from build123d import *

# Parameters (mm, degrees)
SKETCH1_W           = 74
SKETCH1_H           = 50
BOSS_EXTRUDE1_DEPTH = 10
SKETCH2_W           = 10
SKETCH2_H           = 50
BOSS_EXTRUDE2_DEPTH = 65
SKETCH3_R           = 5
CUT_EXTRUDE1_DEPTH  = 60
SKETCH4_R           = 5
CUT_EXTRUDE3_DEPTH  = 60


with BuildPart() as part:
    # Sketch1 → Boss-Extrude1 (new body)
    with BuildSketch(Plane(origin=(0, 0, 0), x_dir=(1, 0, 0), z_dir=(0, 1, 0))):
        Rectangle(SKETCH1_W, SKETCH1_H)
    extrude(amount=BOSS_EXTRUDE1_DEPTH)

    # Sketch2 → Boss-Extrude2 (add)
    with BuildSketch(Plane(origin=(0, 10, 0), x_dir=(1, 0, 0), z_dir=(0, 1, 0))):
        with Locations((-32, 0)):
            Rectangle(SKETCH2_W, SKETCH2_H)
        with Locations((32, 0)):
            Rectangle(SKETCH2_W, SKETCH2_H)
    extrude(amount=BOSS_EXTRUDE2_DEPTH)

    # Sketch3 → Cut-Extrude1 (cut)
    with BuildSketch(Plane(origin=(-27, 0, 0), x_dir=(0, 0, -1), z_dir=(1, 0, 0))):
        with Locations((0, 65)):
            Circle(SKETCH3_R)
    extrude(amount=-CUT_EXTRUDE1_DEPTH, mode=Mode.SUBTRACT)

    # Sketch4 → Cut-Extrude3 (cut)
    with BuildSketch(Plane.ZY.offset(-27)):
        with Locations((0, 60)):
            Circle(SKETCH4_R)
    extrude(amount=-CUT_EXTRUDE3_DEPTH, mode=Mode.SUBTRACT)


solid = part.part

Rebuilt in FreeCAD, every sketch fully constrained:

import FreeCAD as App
import Part
import Sketcher
from FreeCAD import Vector
Q = App.Units.Quantity


def add_polygon(sketch, points):
    """Adds a closed chain of lines whose ends are joined by coincident constraints."""
    first, n = sketch.GeometryCount, len(points)
    for a, b in zip(points, points[1:] + points[:1]):
        sketch.addGeometry(Part.LineSegment(App.Vector(*a, 0), App.Vector(*b, 0)), False)
    for i in range(n):
        sketch.addConstraint(Sketcher.Constraint("Coincident", first + i, 2, first + (i + 1) % n, 1))

doc = App.newDocument("Part")
body = doc.addObject("PartDesign::Body", "Body")

# Sketch on XZ plane
sketch1 = doc.addObject("Sketcher::SketchObject", "Sketch")
body.addObject(sketch1)
sketch1.AttachmentSupport = (doc.XZ_Plane, [""])
sketch1.MapMode = "FlatFace"
add_polygon(sketch1, [(-37, -25), (-37, 25), (37, 25), (37, -25)])  # lines 0-3
sketch1.addConstraint(Sketcher.Constraint("Vertical", 0))
sketch1.addConstraint(Sketcher.Constraint("Horizontal", 1))
sketch1.addConstraint(Sketcher.Constraint("Vertical", 2))
sketch1.addConstraint(Sketcher.Constraint("Horizontal", 3))
sketch1.addConstraint(Sketcher.Constraint("Symmetric", 0, 2, 2, 2, -1, 1))
sketch1.addConstraint(Sketcher.Constraint("DistanceX", 1, 1, 1, 2, Q("74 mm")))
sketch1.addConstraint(Sketcher.Constraint("DistanceY", 0, 1, 0, 2, Q("50 mm")))
pad1 = doc.addObject("PartDesign::Pad", "Pad")
body.addObject(pad1)
pad1.Profile = sketch1
pad1.Length = 10
pad1.Reversed = True

# Sketch on XZ plane
sketch2 = doc.addObject("Sketcher::SketchObject", "Sketch001")
body.addObject(sketch2)
sketch2.AttachmentSupport = (doc.XZ_Plane, [""])
sketch2.MapMode = "FlatFace"
sketch2.AttachmentOffset = App.Placement(Vector(0, 0, -10), App.Rotation())
add_polygon(sketch2, [(-37, -25), (-37, 25), (-27, 25), (-27, -25)])  # lines 0-3
add_polygon(sketch2, [(27, -25), (27, 25), (37, 25), (37, -25)])  # lines 4-7
sketch2.addConstraint(Sketcher.Constraint("Vertical", 0))
sketch2.addConstraint(Sketcher.Constraint("Horizontal", 1))
sketch2.addConstraint(Sketcher.Constraint("Vertical", 2))
sketch2.addConstraint(Sketcher.Constraint("Horizontal", 3))
sketch2.addConstraint(Sketcher.Constraint("Vertical", 4))
sketch2.addConstraint(Sketcher.Constraint("Horizontal", 5))
sketch2.addConstraint(Sketcher.Constraint("Vertical", 6))
sketch2.addConstraint(Sketcher.Constraint("Horizontal", 7))
sketch2.addConstraint(Sketcher.Constraint("Symmetric", 2, 2, 4, 2, -1, 1))
sketch2.addConstraint(Sketcher.Constraint("Symmetric", 0, 2, 6, 2, -1, 1))
sketch2.addConstraint(Sketcher.Constraint("Horizontal", 1, 2, 4, 2))
sketch2.addConstraint(Sketcher.Constraint("DistanceX", 1, 1, 1, 2, Q("10 mm")))
sketch2.addConstraint(Sketcher.Constraint("DistanceY", 0, 1, 0, 2, Q("50 mm")))
sketch2.addConstraint(Sketcher.Constraint("DistanceX", 0, 2, -1, 1, Q("37 mm")))
pad2 = doc.addObject("PartDesign::Pad", "Pad001")
body.addObject(pad2)
pad2.Profile = sketch2
pad2.Length = 65
pad2.Reversed = True

# Sketch on YZ plane
sketch3 = doc.addObject("Sketcher::SketchObject", "Sketch002")
body.addObject(sketch3)
sketch3.AttachmentSupport = (doc.YZ_Plane, [""])
sketch3.MapMode = "FlatFace"
sketch3.AttachmentOffset = App.Placement(Vector(0, 0, -27), App.Rotation())
sketch3.addGeometry(Part.Circle(Vector(65, 0, 0), Vector(0, 0, 1), 5), False)
sketch3.addConstraint(Sketcher.Constraint("PointOnObject", 0, 3, -1))
sketch3.addConstraint(Sketcher.Constraint("Diameter", 0, Q("10 mm")))
sketch3.addConstraint(Sketcher.Constraint("DistanceX", -1, 1, 0, 3, Q("65 mm")))
pocket1 = doc.addObject("PartDesign::Pocket", "Pocket")
body.addObject(pocket1)
pocket1.Profile = sketch3
pocket1.Length = 60

# Sketch on YZ plane
sketch4 = doc.addObject("Sketcher::SketchObject", "Sketch003")
body.addObject(sketch4)
sketch4.AttachmentSupport = (doc.YZ_Plane, [""])
sketch4.MapMode = "FlatFace"
sketch4.AttachmentOffset = App.Placement(Vector(0, 0, 27), App.Rotation())
sketch4.addGeometry(Part.Circle(Vector(60, 0, 0), Vector(0, 0, 1), 5), False)
sketch4.addConstraint(Sketcher.Constraint("PointOnObject", 0, 3, -1))
sketch4.addConstraint(Sketcher.Constraint("Diameter", 0, Q("10 mm")))
sketch4.addConstraint(Sketcher.Constraint("DistanceX", -1, 1, 0, 3, Q("60 mm")))
pocket2 = doc.addObject("PartDesign::Pocket", "Pocket001")
body.addObject(pocket2)
pocket2.Profile = sketch4
pocket2.Length = 60
pocket2.Reversed = True

doc.recompute()
